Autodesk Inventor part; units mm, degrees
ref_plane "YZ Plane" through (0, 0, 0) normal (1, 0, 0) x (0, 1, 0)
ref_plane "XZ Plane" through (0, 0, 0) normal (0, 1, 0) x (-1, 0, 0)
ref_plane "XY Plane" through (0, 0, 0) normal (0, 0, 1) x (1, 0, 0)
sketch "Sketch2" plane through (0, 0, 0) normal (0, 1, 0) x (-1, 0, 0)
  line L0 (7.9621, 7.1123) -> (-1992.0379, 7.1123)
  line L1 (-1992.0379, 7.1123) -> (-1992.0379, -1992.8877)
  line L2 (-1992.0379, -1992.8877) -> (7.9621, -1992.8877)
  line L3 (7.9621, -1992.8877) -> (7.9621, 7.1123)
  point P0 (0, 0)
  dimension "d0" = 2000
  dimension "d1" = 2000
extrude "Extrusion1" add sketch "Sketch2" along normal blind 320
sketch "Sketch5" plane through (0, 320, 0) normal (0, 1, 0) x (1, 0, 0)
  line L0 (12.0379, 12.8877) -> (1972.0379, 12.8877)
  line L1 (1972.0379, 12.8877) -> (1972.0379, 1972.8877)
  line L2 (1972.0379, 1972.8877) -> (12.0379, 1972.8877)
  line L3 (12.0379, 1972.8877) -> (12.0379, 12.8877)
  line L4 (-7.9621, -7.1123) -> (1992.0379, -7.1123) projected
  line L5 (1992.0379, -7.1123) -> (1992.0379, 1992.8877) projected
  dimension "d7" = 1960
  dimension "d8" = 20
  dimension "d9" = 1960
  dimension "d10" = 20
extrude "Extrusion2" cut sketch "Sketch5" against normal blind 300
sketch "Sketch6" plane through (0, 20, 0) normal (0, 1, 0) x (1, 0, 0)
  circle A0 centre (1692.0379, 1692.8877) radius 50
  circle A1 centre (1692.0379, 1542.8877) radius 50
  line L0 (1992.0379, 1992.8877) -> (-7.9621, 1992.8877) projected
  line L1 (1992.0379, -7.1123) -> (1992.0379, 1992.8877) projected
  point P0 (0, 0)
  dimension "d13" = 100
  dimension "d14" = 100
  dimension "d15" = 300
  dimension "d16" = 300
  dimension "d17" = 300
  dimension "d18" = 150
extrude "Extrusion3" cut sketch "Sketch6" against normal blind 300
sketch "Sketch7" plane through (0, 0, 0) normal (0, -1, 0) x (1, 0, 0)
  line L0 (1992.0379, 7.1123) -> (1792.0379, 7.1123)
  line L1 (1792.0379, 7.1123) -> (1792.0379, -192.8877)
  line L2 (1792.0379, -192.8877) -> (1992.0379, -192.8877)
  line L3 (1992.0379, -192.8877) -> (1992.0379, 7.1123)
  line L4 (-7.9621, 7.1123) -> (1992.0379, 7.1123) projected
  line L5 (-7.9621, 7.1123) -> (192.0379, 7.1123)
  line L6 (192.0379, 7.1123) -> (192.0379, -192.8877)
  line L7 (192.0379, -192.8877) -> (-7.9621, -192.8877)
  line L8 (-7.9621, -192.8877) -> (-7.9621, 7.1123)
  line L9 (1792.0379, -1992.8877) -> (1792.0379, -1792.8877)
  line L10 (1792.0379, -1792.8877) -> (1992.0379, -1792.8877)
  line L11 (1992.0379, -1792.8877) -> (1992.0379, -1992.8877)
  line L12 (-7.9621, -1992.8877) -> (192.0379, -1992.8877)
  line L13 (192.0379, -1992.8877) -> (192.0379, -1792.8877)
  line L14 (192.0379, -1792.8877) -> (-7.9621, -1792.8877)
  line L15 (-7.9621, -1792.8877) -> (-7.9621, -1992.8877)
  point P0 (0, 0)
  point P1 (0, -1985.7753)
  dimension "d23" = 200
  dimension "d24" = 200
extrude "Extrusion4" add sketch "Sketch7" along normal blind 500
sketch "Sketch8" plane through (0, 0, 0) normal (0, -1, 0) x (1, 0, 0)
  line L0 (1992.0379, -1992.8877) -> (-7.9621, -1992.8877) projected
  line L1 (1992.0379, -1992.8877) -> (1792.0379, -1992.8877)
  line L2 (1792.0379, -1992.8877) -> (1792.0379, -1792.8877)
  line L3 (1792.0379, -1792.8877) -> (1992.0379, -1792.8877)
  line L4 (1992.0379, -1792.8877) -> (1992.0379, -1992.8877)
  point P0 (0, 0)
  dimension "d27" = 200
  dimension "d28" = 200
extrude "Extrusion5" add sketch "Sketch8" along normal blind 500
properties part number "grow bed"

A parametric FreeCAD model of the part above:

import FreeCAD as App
import Part
import Sketcher
Q = App.Units.Quantity

doc = App.newDocument("Part")
body = doc.addObject("PartDesign::Body", "Body")

# Sketch on XZ plane
sketch1 = doc.addObject("Sketcher::SketchObject", "Sketch")
body.addObject(sketch1)
sketch1.AttachmentSupport = (doc.XZ_Plane, [""])
sketch1.MapMode = "FlatFace"
sketch1.addGeometry(Part.LineSegment(App.Vector(-8, -1993, 0), App.Vector(-8, 7, 0)), False)
sketch1.addGeometry(Part.LineSegment(App.Vector(-8, 7, 0), App.Vector(1992, 7, 0)), False)
sketch1.addGeometry(Part.LineSegment(App.Vector(1992, 7, 0), App.Vector(1992, -1993, 0)), False)
sketch1.addGeometry(Part.LineSegment(App.Vector(1992, -1993, 0), App.Vector(-8, -1993, 0)), False)
sketch1.addConstraint(Sketcher.Constraint("Coincident", 0, 2, 1, 1))
sketch1.addConstraint(Sketcher.Constraint("Coincident", 1, 2, 2, 1))
sketch1.addConstraint(Sketcher.Constraint("Coincident", 2, 2, 3, 1))
sketch1.addConstraint(Sketcher.Constraint("Coincident", 3, 2, 0, 1))
sketch1.addConstraint(Sketcher.Constraint("Vertical", 0))
sketch1.addConstraint(Sketcher.Constraint("Horizontal", 1))
sketch1.addConstraint(Sketcher.Constraint("Vertical", 2))
sketch1.addConstraint(Sketcher.Constraint("Horizontal", 3))
sketch1.addConstraint(Sketcher.Constraint("Equal", 3, 0))
sketch1.addConstraint(Sketcher.Constraint("DistanceX", 1, 1, 1, 2, Q("2000 mm")))
sketch1.addConstraint(Sketcher.Constraint("DistanceX", 0, 2, -1, 1, Q("7.962 mm")))
sketch1.addConstraint(Sketcher.Constraint("DistanceY", -1, 1, 0, 2, Q("7.1123 mm")))
pad1 = doc.addObject("PartDesign::Pad", "Pad")
body.addObject(pad1)
pad1.Profile = sketch1
pad1.Length = 320
pad1.Reversed = True

# Sketch on XZ plane
sketch2 = doc.addObject("Sketcher::SketchObject", "Sketch001")
body.addObject(sketch2)
sketch2.AttachmentSupport = (doc.XZ_Plane, [""])
sketch2.MapMode = "FlatFace"
sketch2.AttachmentOffset = App.Placement(App.Vector(0, 0, -320), App.Rotation())
sketch2.addGeometry(Part.LineSegment(App.Vector(12, -1973, 0), App.Vector(12, -13, 0)), False)
sketch2.addGeometry(Part.LineSegment(App.Vector(12, -13, 0), App.Vector(1972, -13, 0)), False)
sketch2.addGeometry(Part.LineSegment(App.Vector(1972, -13, 0), App.Vector(1972, -1973, 0)), False)
sketch2.addGeometry(Part.LineSegment(App.Vector(1972, -1973, 0), App.Vector(12, -1973, 0)), False)
sketch2.addConstraint(Sketcher.Constraint("Coincident", 0, 2, 1, 1))
sketch2.addConstraint(Sketcher.Constraint("Coincident", 1, 2, 2, 1))
sketch2.addConstraint(Sketcher.Constraint("Coincident", 2, 2, 3, 1))
sketch2.addConstraint(Sketcher.Constraint("Coincident", 3, 2, 0, 1))
sketch2.addConstraint(Sketcher.Constraint("Vertical", 0))
sketch2.addConstraint(Sketcher.Constraint("Horizontal", 1))
sketch2.addConstraint(Sketcher.Constraint("Vertical", 2))
sketch2.addConstraint(Sketcher.Constraint("Horizontal", 3))
sketch2.addConstraint(Sketcher.Constraint("Equal", 3, 0))
sketch2.addConstraint(Sketcher.Constraint("DistanceX", 1, 1, 1, 2, Q("1960 mm")))
sketch2.addConstraint(Sketcher.Constraint("DistanceX", -1, 1, 0, 2, Q("12.038 mm")))
sketch2.addConstraint(Sketcher.Constraint("DistanceY", 0, 2, -1, 1, Q("12.8877 mm")))
pocket1 = doc.addObject("PartDesign::Pocket", "Pocket")
body.addObject(pocket1)
pocket1.Profile = sketch2
pocket1.Length = 300
pocket1.Reversed = True

# Sketch on XZ plane
sketch3 = doc.addObject("Sketcher::SketchObject", "Sketch002")
body.addObject(sketch3)
sketch3.AttachmentSupport = (doc.XZ_Plane, [""])
sketch3.MapMode = "FlatFace"
sketch3.AttachmentOffset = App.Placement(App.Vector(0, 0, -20), App.Rotation())
sketch3.addGeometry(Part.Circle(App.Vector(1692, -1693, 0), App.Vector(0, 0, 1), 50), False)
sketch3.addGeometry(Part.Circle(App.Vector(1692, -1543, 0), App.Vector(0, 0, 1), 50), False)
sketch3.addConstraint(Sketcher.Constraint("Equal", 0, 1))
sketch3.addConstraint(Sketcher.Constraint("Vertical", 0, 3, 1, 3))
sketch3.addConstraint(Sketcher.Constraint("Diameter", 0, Q("100 mm")))
sketch3.addConstraint(Sketcher.Constraint("DistanceY", 0, 3, 1, 3, Q("150 mm")))
sketch3.addConstraint(Sketcher.Constraint("DistanceX", -1, 1, 0, 3, Q("1692.038 mm")))
sketch3.addConstraint(Sketcher.Constraint("DistanceY", 0, 3, -1, 1, Q("1692.8877 mm")))
pocket2 = doc.addObject("PartDesign::Pocket", "Pocket001")
body.addObject(pocket2)
pocket2.Profile = sketch3
pocket2.Length = 300
pocket2.Reversed = True

# Sketch on XZ plane
sketch4 = doc.addObject("Sketcher::SketchObject", "Sketch003")
body.addObject(sketch4)
sketch4.AttachmentSupport = (doc.XZ_Plane, [""])
sketch4.MapMode = "FlatFace"
sketch4.addGeometry(Part.LineSegment(App.Vector(1992, -193, 0), App.Vector(1992, 7, 0)), False)
sketch4.addGeometry(Part.LineSegment(App.Vector(1992, 7, 0), App.Vector(1792, 7, 0)), False)
sketch4.addGeometry(Part.LineSegment(App.Vector(1792, 7, 0), App.Vector(1792, -193, 0)), False)
sketch4.addGeometry(Part.LineSegment(App.Vector(1792, -193, 0), App.Vector(1992, -193, 0)), False)
sketch4.addGeometry(Part.LineSegment(App.Vector(192, -193, 0), App.Vector(192, 7, 0)), False)
sketch4.addGeometry(Part.LineSegment(App.Vector(192, 7, 0), App.Vector(-8, 7, 0)), False)
sketch4.addGeometry(Part.LineSegment(App.Vector(-8, 7, 0), App.Vector(-8, -193, 0)), False)
sketch4.addGeometry(Part.LineSegment(App.Vector(-8, -193, 0), App.Vector(192, -193, 0)), False)
sketch4.addGeometry(Part.LineSegment(App.Vector(-8, -1793, 0), App.Vector(-8, -1993, 0)), False)
sketch4.addGeometry(Part.LineSegment(App.Vector(-8, -1993, 0), App.Vector(192, -1993, 0)), False)
sketch4.addGeometry(Part.LineSegment(App.Vector(192, -1993, 0), App.Vector(192, -1793, 0)), False)
sketch4.addGeometry(Part.LineSegment(App.Vector(192, -1793, 0), App.Vector(-8, -1793, 0)), False)
sketch4.addConstraint(Sketcher.Constraint("Coincident", 0, 2, 1, 1))
sketch4.addConstraint(Sketcher.Constraint("Coincident", 1, 2, 2, 1))
sketch4.addConstraint(Sketcher.Constraint("Coincident", 2, 2, 3, 1))
sketch4.addConstraint(Sketcher.Constraint("Coincident", 3, 2, 0, 1))
sketch4.addConstraint(Sketcher.Constraint("Coincident", 4, 2, 5, 1))
sketch4.addConstraint(Sketcher.Constraint("Coincident", 5, 2, 6, 1))
sketch4.addConstraint(Sketcher.Constraint("Coincident", 6, 2, 7, 1))
sketch4.addConstraint(Sketcher.Constraint("Coincident", 7, 2, 4, 1))
sketch4.addConstraint(Sketcher.Constraint("Coincident", 8, 2, 9, 1))
sketch4.addConstraint(Sketcher.Constraint("Coincident", 9, 2, 10, 1))
sketch4.addConstraint(Sketcher.Constraint("Coincident", 10, 2, 11, 1))
sketch4.addConstraint(Sketcher.Constraint("Coincident", 11, 2, 8, 1))
sketch4.addConstraint(Sketcher.Constraint("Vertical", 0))
sketch4.addConstraint(Sketcher.Constraint("Horizontal", 1))
sketch4.addConstraint(Sketcher.Constraint("Vertical", 2))
sketch4.addConstraint(Sketcher.Constraint("Horizontal", 3))
sketch4.addConstraint(Sketcher.Constraint("Vertical", 4))
sketch4.addConstraint(Sketcher.Constraint("Horizontal", 5))
sketch4.addConstraint(Sketcher.Constraint("Vertical", 6))
sketch4.addConstraint(Sketcher.Constraint("Horizontal", 7))
sketch4.addConstraint(Sketcher.Constraint("Vertical", 8))
sketch4.addConstraint(Sketcher.Constraint("Horizontal", 9))
sketch4.addConstraint(Sketcher.Constraint("Vertical", 10))
sketch4.addConstraint(Sketcher.Constraint("Horizontal", 11))
sketch4.addConstraint(Sketcher.Constraint("Horizontal", 1, 2, 4, 2))
sketch4.addConstraint(Sketcher.Constraint("Horizontal", 3, 2, 6, 2))
sketch4.addConstraint(Sketcher.Constraint("Vertical", 6, 2, 8, 2))
sketch4.addConstraint(Sketcher.Constraint("Vertical", 7, 2, 9, 2))
sketch4.addConstraint(Sketcher.Constraint("Equal", 3, 5))
sketch4.addConstraint(Sketcher.Constraint("Equal", 11, 0))
sketch4.addConstraint(Sketcher.Constraint("Equal", 6, 8))
sketch4.addConstraint(Sketcher.Constraint("DistanceX", 1, 2, 1, 1, Q("200 mm")))
sketch4.addConstraint(Sketcher.Constraint("DistanceX", 4, 2, 1, 2, Q("1600 mm")))
sketch4.addConstraint(Sketcher.Constraint("DistanceY", 8, 2, 6, 2, Q("1800 mm")))
sketch4.addConstraint(Sketcher.Constraint("DistanceX", -1, 1, 0, 2, Q("1992.038 mm")))
sketch4.addConstraint(Sketcher.Constraint("DistanceY", -1, 1, 0, 2, Q("7.1123 mm")))
pad2 = doc.addObject("PartDesign::Pad", "Pad001")
body.addObject(pad2)
pad2.Profile = sketch4
pad2.Length = 500

# Sketch on XZ plane
sketch5 = doc.addObject("Sketcher::SketchObject", "Sketch004")
body.addObject(sketch5)
sketch5.AttachmentSupport = (doc.XZ_Plane, [""])
sketch5.MapMode = "FlatFace"
sketch5.addGeometry(Part.LineSegment(App.Vector(1792, -1993, 0), App.Vector(1992, -1993, 0)), False)
sketch5.addGeometry(Part.LineSegment(App.Vector(1992, -1993, 0), App.Vector(1992, -1793, 0)), False)
sketch5.addGeometry(Part.LineSegment(App.Vector(1992, -1793, 0), App.Vector(1792, -1793, 0)), False)
sketch5.addGeometry(Part.LineSegment(App.Vector(1792, -1793, 0), App.Vector(1792, -1993, 0)), False)
sketch5.addConstraint(Sketcher.Constraint("Coincident", 0, 2, 1, 1))
sketch5.addConstraint(Sketcher.Constraint("Coincident", 1, 2, 2, 1))
sketch5.addConstraint(Sketcher.Constraint("Coincident", 2, 2, 3, 1))
sketch5.addConstraint(Sketcher.Constraint("Coincident", 3, 2, 0, 1))
sketch5.addConstraint(Sketcher.Constraint("Horizontal", 0))
sketch5.addConstraint(Sketcher.Constraint("Vertical", 1))
sketch5.addConstraint(Sketcher.Constraint("Horizontal", 2))
sketch5.addConstraint(Sketcher.Constraint("Vertical", 3))
sketch5.addConstraint(Sketcher.Constraint("Equal", 2, 1))
sketch5.addConstraint(Sketcher.Constraint("DistanceX", 0, 1, 0, 2, Q("200 mm")))
sketch5.addConstraint(Sketcher.Constraint("DistanceX", -1, 1, 0, 2, Q("1992.038 mm")))
sketch5.addConstraint(Sketcher.Constraint("DistanceY", 0, 2, -1, 1, Q("1992.8877 mm")))
pad3 = doc.addObject("PartDesign::Pad", "Pad002")
body.addObject(pad3)
pad3.Profile = sketch5
pad3.Length = 500

doc.recompute()
